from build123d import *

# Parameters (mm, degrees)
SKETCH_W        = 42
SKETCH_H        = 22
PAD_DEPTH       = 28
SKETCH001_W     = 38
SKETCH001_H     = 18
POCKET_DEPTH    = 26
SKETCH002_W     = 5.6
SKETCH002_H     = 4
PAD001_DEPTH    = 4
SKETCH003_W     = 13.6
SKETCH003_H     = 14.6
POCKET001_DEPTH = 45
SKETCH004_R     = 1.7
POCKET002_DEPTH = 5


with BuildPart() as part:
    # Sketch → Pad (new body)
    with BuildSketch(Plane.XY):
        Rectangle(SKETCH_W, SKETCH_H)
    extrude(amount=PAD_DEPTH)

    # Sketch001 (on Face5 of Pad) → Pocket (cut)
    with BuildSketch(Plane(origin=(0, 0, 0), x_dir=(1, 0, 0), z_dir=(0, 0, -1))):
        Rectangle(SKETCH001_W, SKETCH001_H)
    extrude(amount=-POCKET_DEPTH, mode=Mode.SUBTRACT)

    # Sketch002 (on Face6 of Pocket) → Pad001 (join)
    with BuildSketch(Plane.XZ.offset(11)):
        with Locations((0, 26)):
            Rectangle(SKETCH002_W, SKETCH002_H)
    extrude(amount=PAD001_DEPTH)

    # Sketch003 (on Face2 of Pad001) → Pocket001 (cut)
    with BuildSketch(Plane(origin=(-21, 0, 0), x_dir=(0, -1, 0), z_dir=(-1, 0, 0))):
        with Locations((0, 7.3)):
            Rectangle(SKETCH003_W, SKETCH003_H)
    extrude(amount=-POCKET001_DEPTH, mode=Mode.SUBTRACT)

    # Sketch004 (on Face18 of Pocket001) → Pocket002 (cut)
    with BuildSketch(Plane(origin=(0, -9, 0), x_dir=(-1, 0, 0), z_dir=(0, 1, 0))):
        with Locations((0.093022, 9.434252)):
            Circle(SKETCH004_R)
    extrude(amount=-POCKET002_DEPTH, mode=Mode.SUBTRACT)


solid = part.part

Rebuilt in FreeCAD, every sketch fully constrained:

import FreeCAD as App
import Part
import Sketcher
Q = App.Units.Quantity


def add_polygon(sketch, points):
    """Adds a closed chain of lines whose ends are joined by coincident constraints."""
    first, n = sketch.GeometryCount, len(points)
    for a, b in zip(points, points[1:] + points[:1]):
        sketch.addGeometry(Part.LineSegment(App.Vector(*a, 0), App.Vector(*b, 0)), False)
    for i in range(n):
        sketch.addConstraint(Sketcher.Constraint("Coincident", first + i, 2, first + (i + 1) % n, 1))

doc = App.newDocument("Part")
body = doc.addObject("PartDesign::Body", "Body")

# Sketch on XY plane
sketch1 = doc.addObject("Sketcher::SketchObject", "Sketch")
body.addObject(sketch1)
sketch1.AttachmentSupport = (doc.XY_Plane, [""])
sketch1.MapMode = "FlatFace"
add_polygon(sketch1, [(-21, 11), (-21, -11), (21, -11), (21, 11)])  # lines 0-3
sketch1.addConstraint([
    Sketcher.Constraint("Vertical", 0),
    Sketcher.Constraint("Horizontal", 1),
    Sketcher.Constraint("Vertical", 2),
    Sketcher.Constraint("Horizontal", 3),
    Sketcher.Constraint("Symmetric", 0, 2, 2, 2, -1, 1),
    Sketcher.Constraint("DistanceX", 1, 1, 1, 2, Q("42 mm")),
    Sketcher.Constraint("DistanceY", 0, 2, 0, 1, Q("22 mm")),
])
pad1 = doc.addObject("PartDesign::Pad", "Pad")
body.addObject(pad1)
pad1.Profile = sketch1
pad1.Length = 28

# Sketch on XY plane
sketch2 = doc.addObject("Sketcher::SketchObject", "Sketch001")
body.addObject(sketch2)
sketch2.AttachmentSupport = (doc.XY_Plane, [""])
sketch2.MapMode = "FlatFace"
add_polygon(sketch2, [(-19, -9), (-19, 9), (19, 9), (19, -9)])  # lines 0-3
sketch2.addConstraint([
    Sketcher.Constraint("Vertical", 0),
    Sketcher.Constraint("Horizontal", 1),
    Sketcher.Constraint("Vertical", 2),
    Sketcher.Constraint("Horizontal", 3),
    Sketcher.Constraint("Symmetric", 0, 2, 2, 2, -1, 1),
    Sketcher.Constraint("DistanceX", 1, 1, 1, 2, Q("38 mm")),
    Sketcher.Constraint("DistanceY", 0, 1, 0, 2, Q("18 mm")),
])
pocket1 = doc.addObject("PartDesign::Pocket", "Pocket")
body.addObject(pocket1)
pocket1.Profile = sketch2
pocket1.Length = 26
pocket1.Reversed = True

# Sketch on XZ plane
sketch3 = doc.addObject("Sketcher::SketchObject", "Sketch002")
body.addObject(sketch3)
sketch3.AttachmentSupport = (doc.XZ_Plane, [""])
sketch3.MapMode = "FlatFace"
sketch3.AttachmentOffset = App.Placement(App.Vector(0, 0, 11), App.Rotation())
add_polygon(sketch3, [(-2.8, 28), (-2.8, 24), (2.8, 24), (2.8, 28)])  # lines 0-3
sketch3.addConstraint([
    Sketcher.Constraint("Vertical", 0),
    Sketcher.Constraint("Horizontal", 1),
    Sketcher.Constraint("Vertical", 2),
    Sketcher.Constraint("Horizontal", 3),
    Sketcher.Constraint("DistanceY", 0, 2, 0, 1, Q("4 mm")),
    Sketcher.Constraint("DistanceX", 1, 1, 1, 2, Q("5.6 mm")),
    Sketcher.Constraint("DistanceY", -1, 1, 0, 2, Q("24 mm")),
    Sketcher.Constraint("DistanceX", 0, 2, -1, 1, Q("2.8 mm")),
])
pad2 = doc.addObject("PartDesign::Pad", "Pad001")
body.addObject(pad2)
pad2.Profile = sketch3
pad2.Length = 4

# Sketch on YZ plane
sketch4 = doc.addObject("Sketcher::SketchObject", "Sketch003")
body.addObject(sketch4)
sketch4.AttachmentSupport = (doc.YZ_Plane, [""])
sketch4.MapMode = "FlatFace"
sketch4.AttachmentOffset = App.Placement(App.Vector(0, 0, -21), App.Rotation())
add_polygon(sketch4, [(7, 15), (7, 0), (-7, 0), (-7, 15)])  # lines 0-3
sketch4.addConstraint([
    Sketcher.Constraint("Vertical", 0),
    Sketcher.Constraint("Horizontal", 1),
    Sketcher.Constraint("Vertical", 2),
    Sketcher.Constraint("Horizontal", 3),
    Sketcher.Constraint("Symmetric", 0, 2, 1, 2, -1, 1),
    Sketcher.Constraint("DistanceX", 1, 2, 1, 1, Q("13.6 mm")),
    Sketcher.Constraint("DistanceY", 0, 2, 0, 1, Q("14.6 mm")),
])
pocket2 = doc.addObject("PartDesign::Pocket", "Pocket001")
body.addObject(pocket2)
pocket2.Profile = sketch4
pocket2.Length = 45
pocket2.Reversed = True

# Sketch on XZ plane
sketch5 = doc.addObject("Sketcher::SketchObject", "Sketch004")
body.addObject(sketch5)
sketch5.AttachmentSupport = (doc.XZ_Plane, [""])
sketch5.MapMode = "FlatFace"
sketch5.AttachmentOffset = App.Placement(App.Vector(0, 0, 9), App.Rotation())
sketch5.addGeometry(Part.Circle(App.Vector(-0.1, 9.4, 0), App.Vector(0, 0, 1), 1.7), False)
sketch5.addConstraint([
    Sketcher.Constraint("Diameter", 0, Q("3.4 mm")),
    Sketcher.Constraint("DistanceX", 0, 3, -1, 1, Q("0.093022 mm")),
    Sketcher.Constraint("DistanceY", -1, 1, 0, 3, Q("9.434252 mm")),
])
pocket3 = doc.addObject("PartDesign::Pocket", "Pocket002")
body.addObject(pocket3)
pocket3.Profile = sketch5
pocket3.Length = 5
pocket3.Reversed = True

doc.recompute()
